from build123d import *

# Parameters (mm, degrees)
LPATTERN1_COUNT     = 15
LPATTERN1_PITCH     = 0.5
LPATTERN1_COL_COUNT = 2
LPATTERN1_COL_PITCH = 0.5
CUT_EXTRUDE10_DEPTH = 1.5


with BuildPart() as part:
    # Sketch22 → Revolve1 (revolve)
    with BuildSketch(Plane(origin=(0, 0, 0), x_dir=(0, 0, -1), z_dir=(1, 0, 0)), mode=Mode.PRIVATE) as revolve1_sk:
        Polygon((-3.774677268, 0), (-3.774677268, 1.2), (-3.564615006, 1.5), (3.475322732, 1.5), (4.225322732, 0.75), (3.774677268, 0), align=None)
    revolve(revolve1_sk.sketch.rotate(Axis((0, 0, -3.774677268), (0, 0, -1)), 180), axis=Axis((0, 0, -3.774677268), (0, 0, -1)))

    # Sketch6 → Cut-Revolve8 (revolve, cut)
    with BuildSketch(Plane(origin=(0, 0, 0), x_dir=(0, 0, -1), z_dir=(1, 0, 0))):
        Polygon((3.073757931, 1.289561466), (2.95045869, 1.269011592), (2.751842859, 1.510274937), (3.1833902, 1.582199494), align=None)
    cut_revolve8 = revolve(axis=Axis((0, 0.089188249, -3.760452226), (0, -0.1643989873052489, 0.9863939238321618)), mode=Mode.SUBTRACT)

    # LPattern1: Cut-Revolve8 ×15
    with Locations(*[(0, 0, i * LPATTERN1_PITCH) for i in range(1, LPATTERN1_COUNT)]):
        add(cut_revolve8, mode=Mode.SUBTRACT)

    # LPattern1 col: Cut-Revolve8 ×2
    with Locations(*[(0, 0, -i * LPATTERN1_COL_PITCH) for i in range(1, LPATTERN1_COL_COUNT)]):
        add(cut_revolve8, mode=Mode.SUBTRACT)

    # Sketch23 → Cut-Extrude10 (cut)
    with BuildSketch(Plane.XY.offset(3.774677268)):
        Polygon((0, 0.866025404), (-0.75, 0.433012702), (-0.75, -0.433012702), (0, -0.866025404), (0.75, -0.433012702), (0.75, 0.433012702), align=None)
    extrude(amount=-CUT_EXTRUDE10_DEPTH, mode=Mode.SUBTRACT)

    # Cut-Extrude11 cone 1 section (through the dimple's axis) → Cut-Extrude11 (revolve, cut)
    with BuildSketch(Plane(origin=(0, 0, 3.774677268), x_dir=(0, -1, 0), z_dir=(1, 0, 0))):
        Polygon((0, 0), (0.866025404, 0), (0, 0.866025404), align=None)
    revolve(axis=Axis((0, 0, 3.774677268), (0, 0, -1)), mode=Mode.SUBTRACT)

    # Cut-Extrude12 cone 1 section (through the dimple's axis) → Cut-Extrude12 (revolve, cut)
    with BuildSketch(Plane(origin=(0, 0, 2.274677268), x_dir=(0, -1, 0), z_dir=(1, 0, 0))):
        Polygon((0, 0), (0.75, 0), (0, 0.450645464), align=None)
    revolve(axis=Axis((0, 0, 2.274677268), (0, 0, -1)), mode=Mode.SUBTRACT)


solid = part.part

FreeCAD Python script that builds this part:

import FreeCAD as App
import Part
import Sketcher
from FreeCAD import Vector
Q = App.Units.Quantity


def add_polygon(sketch, points):
    """Adds a closed chain of lines whose ends are joined by coincident constraints."""
    first, n = sketch.GeometryCount, len(points)
    for a, b in zip(points, points[1:] + points[:1]):
        sketch.addGeometry(Part.LineSegment(App.Vector(*a, 0), App.Vector(*b, 0)), False)
    for i in range(n):
        sketch.addConstraint(Sketcher.Constraint("Coincident", first + i, 2, first + (i + 1) % n, 1))

doc = App.newDocument("Part")
body = doc.addObject("PartDesign::Body", "Body")

sketch1 = doc.addObject("Sketcher::SketchObject", "Sketch")
body.addObject(sketch1)
sketch1.AttachmentSupport = (doc.YZ_Plane, [""])
sketch1.MapMode = "FlatFace"
add_polygon(sketch1, [(1.2, 3.77), (0, 3.77), (0, -3.77), (0.75, -4.23), (1.5, -3.48), (1.5, 3.56)])
sketch1.addConstraint([
    Sketcher.Constraint("Horizontal", 0),
    Sketcher.Constraint("Vertical", 1),
    Sketcher.Constraint("Vertical", 4),
    Sketcher.Constraint("Symmetric", 0, 2, 1, 2, -1, 1),
    Sketcher.Constraint("Angle", 2, Q("-31 deg")),
    Sketcher.Constraint("Angle", 3, Q("45 deg")),
    Sketcher.Constraint("Angle", 5, Q("145 deg")),
    Sketcher.Constraint("DistanceX", 0, 2, 0, 1, Q("1.2 mm")),
    Sketcher.Constraint("DistanceY", 2, 2, 0, 2, Q("8 mm")),
    Sketcher.Constraint("DistanceX", -1, 1, 3, 2, Q("1.5 mm")),
    Sketcher.Constraint("DistanceX", -1, 1, 2, 2, Q("0.75 mm")),
])
revolution = doc.addObject("PartDesign::Revolution", "Revolution")
body.addObject(revolution)
revolution.Profile = sketch1
revolution.ReferenceAxis = (sketch1, ["V_Axis"])
revolution.Angle = 360

sketch2 = doc.addObject("Sketcher::SketchObject", "Sketch001")
body.addObject(sketch2)
sketch2.AttachmentSupport = (doc.YZ_Plane, [""])
sketch2.MapMode = "FlatFace"
add_polygon(sketch2, [(1.27, -2.95), (1.29, -3.07), (1.58, -3.18), (1.51, -2.75)])
sketch2.addGeometry(Part.LineSegment(Vector(0.04, -3.44, 0), Vector(-0.04, -3.01, 0)), True)
sketch2.addConstraint([
    Sketcher.Constraint("Parallel", 0, 2),
    Sketcher.Constraint("Parallel", 2, 4),
    Sketcher.Constraint("Equal", 1, 3),
    Sketcher.Constraint("Equal", 2, 4),
    Sketcher.Constraint("Distance", 0, Q("0.125 mm")),
    Sketcher.Constraint("Distance", 1, Q("0.3125 mm")),
    Sketcher.Constraint("Distance", 2, Q("0.4375 mm")),
    Sketcher.Constraint("DistanceX", -1, 1, 1, 2, Q("1.582199 mm")),
    Sketcher.Constraint("DistanceY", 0, 2, 3, 2, Q("0.123299 mm")),
    Sketcher.Constraint("DistanceX", 4, 1, 0, 2, Q("1.253599 mm")),
    Sketcher.Constraint("DistanceY", 1, 2, -1, 1, Q("3.18339 mm")),
    Sketcher.Constraint("DistanceY", 4, 2, -1, 1, Q("3.009549 mm")),
])
groove = doc.addObject("PartDesign::Groove", "Groove")
body.addObject(groove)
groove.Profile = sketch2
groove.ReferenceAxis = (sketch2, ["Axis0"])
groove.Angle = 360
doc.recompute()

linearpattern = doc.addObject("PartDesign::LinearPattern", "LinearPattern")
body.addObject(linearpattern)
linearpattern.Originals = [groove]
linearpattern.Direction = (doc.Z_Axis, [""])
linearpattern.Mode = "offset"
linearpattern.Offset = 0.5
linearpattern.Occurrences = 15
body.Tip = linearpattern
doc.recompute()

linearpattern2 = doc.addObject("PartDesign::LinearPattern", "LinearPattern001")
body.addObject(linearpattern2)
linearpattern2.Originals = [groove]
linearpattern2.Direction = (doc.Z_Axis, [""])
linearpattern2.Mode = "offset"
linearpattern2.Offset = 0.5
linearpattern2.Occurrences = 2
linearpattern2.Reversed = True
body.Tip = linearpattern2

sketch3 = doc.addObject("Sketcher::SketchObject", "Sketch002")
body.addObject(sketch3)
sketch3.AttachmentSupport = (doc.XY_Plane, [""])
sketch3.MapMode = "FlatFace"
sketch3.AttachmentOffset = App.Placement(Vector(0, 0, 3.774677), App.Rotation())
add_polygon(sketch3, [(0, 0.9), (-0.8, 0.4), (-0.8, -0.4), (0, -0.9), (0.8, -0.4), (0.8, 0.4)])
sketch3.addConstraint([
    Sketcher.Constraint("Vertical", 1),
    Sketcher.Constraint("Vertical", 4),
    Sketcher.Constraint("Symmetric", 0, 2, 3, 2, -1, 1),
    Sketcher.Constraint("Symmetric", 2, 2, 5, 2, -1, 1),
    Sketcher.Constraint("PointOnObject", 2, 2, -2),
    Sketcher.Constraint("Parallel", 2, 5),
    Sketcher.Constraint("Horizontal", 1, 2, 3, 2),
    Sketcher.Constraint("Angle", 0, Q("-150 deg")),
    Sketcher.Constraint("DistanceX", 1, 2, 3, 2, Q("1.5 mm")),
    Sketcher.Constraint("DistanceY", 1, 2, 1, 1, Q("0.866025 mm")),
])
pocket1 = doc.addObject("PartDesign::Pocket", "Pocket")
body.addObject(pocket1)
pocket1.Profile = sketch3
pocket1.Length = 1.5

sketch4 = doc.addObject("Sketcher::SketchObject", "Sketch003")
body.addObject(sketch4)
sketch4.AttachmentSupport = (doc.YZ_Plane, [""])
sketch4.MapMode = "FlatFace"
add_polygon(sketch4, [(0, 3.8), (-0.9, 3.8), (0, 2.9)])
sketch4.addConstraint([
    Sketcher.Constraint("Horizontal", 0),
    Sketcher.Constraint("Vertical", 2),
    Sketcher.Constraint("PointOnObject", 1, 2, -2),
    Sketcher.Constraint("Equal", 0, 2),
    Sketcher.Constraint("DistanceX", 0, 2, 0, 1, Q("0.866025 mm")),
    Sketcher.Constraint("DistanceY", -1, 1, 1, 2, Q("2.908652 mm")),
])
groove2 = doc.addObject("PartDesign::Groove", "Groove001")
body.addObject(groove2)
groove2.Profile = sketch4
groove2.ReferenceAxis = (sketch4, ["V_Axis"])
groove2.Angle = 360

sketch5 = doc.addObject("Sketcher::SketchObject", "Sketch004")
body.addObject(sketch5)
sketch5.AttachmentSupport = (doc.YZ_Plane, [""])
sketch5.MapMode = "FlatFace"
add_polygon(sketch5, [(0, 2.27), (-0.75, 2.27), (0, 1.82)])
sketch5.addConstraint([
    Sketcher.Constraint("Horizontal", 0),
    Sketcher.Constraint("Vertical", 2),
    Sketcher.Constraint("PointOnObject", 1, 2, -2),
    Sketcher.Constraint("Angle", 1, Q("-31 deg")),
    Sketcher.Constraint("DistanceX", 0, 2, 0, 1, Q("0.75 mm")),
    Sketcher.Constraint("DistanceY", -1, 1, 1, 2, Q("1.824032 mm")),
])
groove3 = doc.addObject("PartDesign::Groove", "Groove002")
body.addObject(groove3)
groove3.Profile = sketch5
groove3.ReferenceAxis = (sketch5, ["V_Axis"])
groove3.Angle = 360

doc.recompute()
